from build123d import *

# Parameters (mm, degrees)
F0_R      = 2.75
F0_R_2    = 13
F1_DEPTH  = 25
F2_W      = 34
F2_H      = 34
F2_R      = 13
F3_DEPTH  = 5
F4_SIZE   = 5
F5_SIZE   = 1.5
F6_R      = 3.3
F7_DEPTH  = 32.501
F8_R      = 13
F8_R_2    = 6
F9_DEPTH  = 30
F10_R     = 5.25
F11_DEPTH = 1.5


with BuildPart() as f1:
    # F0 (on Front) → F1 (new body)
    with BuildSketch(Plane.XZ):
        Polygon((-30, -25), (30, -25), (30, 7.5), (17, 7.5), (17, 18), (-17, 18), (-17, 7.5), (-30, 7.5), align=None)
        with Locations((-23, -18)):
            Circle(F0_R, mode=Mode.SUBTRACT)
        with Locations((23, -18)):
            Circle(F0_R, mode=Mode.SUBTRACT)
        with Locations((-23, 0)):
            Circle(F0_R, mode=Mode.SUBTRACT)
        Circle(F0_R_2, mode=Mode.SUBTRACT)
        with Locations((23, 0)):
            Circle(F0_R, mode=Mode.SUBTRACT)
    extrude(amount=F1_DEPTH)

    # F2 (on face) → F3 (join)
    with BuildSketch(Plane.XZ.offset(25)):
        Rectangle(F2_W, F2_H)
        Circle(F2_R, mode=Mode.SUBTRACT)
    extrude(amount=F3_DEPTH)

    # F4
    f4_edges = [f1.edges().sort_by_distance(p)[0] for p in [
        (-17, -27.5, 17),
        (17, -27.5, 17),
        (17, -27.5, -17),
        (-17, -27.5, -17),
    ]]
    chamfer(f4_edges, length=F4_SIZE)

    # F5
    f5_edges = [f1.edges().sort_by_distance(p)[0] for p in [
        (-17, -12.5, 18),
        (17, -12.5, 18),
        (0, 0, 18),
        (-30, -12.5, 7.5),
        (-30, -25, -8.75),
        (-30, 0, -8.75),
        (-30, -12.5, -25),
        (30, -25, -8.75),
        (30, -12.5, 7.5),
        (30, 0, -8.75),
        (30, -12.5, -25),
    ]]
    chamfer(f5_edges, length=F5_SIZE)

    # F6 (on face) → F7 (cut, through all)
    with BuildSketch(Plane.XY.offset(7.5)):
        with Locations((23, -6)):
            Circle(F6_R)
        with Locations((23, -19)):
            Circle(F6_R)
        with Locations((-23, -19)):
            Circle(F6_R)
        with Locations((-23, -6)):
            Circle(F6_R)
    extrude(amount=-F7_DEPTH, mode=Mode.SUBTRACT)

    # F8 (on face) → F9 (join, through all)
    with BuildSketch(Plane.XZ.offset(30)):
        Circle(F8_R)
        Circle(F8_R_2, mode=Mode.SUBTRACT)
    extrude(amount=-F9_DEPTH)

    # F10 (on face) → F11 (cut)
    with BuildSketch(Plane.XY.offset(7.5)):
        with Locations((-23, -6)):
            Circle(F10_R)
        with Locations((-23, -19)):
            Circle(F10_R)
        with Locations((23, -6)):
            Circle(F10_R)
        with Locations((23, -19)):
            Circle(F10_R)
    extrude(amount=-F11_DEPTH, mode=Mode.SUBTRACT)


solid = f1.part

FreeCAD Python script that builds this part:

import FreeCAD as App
import Part
import Sketcher

V = App.Vector
Q = App.Units.Quantity


def edges_at(feature, points):
    """Names of the edges that pass closest to the given points."""
    edges = feature.Shape.Edges
    near = lambda p: min(range(len(edges)), key=lambda i: edges[i].distToShape(Part.Vertex(*p))[0])
    return sorted({f"Edge{near(p) + 1}" for p in points})


def add_polygon(sketch, points):
    """Adds a closed chain of lines whose ends are joined by coincident constraints."""
    first, n = sketch.GeometryCount, len(points)
    for a, b in zip(points, points[1:] + points[:1]):
        sketch.addGeometry(Part.LineSegment(App.Vector(*a, 0), App.Vector(*b, 0)), False)
    for i in range(n):
        sketch.addConstraint(Sketcher.Constraint("Coincident", first + i, 2, first + (i + 1) % n, 1))

doc = App.newDocument("Part")
body = doc.addObject("PartDesign::Body", "Body")

# Sketch on XZ plane
sketch1 = body.newObject("Sketcher::SketchObject", "Sketch")
sketch1.AttachmentSupport = (doc.getObject("XZ_Plane"), [""])
sketch1.MapMode = "FlatFace"
add_polygon(sketch1, [(-30, -25), (30, -25), (30, 7.5), (17, 7.5), (17, 18), (-17, 18), (-17, 7.5), (-30, 7.5)])  # lines 0-7
sketch1.addGeometry(Part.Circle(V(-23, -18, 0), V(0, 0, 1), 2.8), False)  # 8
sketch1.addGeometry(Part.Circle(V(23, -18, 0), V(0, 0, 1), 2.8), False)  # 9
sketch1.addGeometry(Part.Circle(V(-23, 0, 0), V(0, 0, 1), 2.8), False)  # 10
sketch1.addGeometry(Part.Circle(V(0, 0, 0), V(0, 0, 1), 13), False)  # 11
sketch1.addGeometry(Part.Circle(V(23, 0, 0), V(0, 0, 1), 2.8), False)  # 12
sketch1.addConstraint(Sketcher.Constraint("Horizontal", 0))
sketch1.addConstraint(Sketcher.Constraint("Vertical", 1))
sketch1.addConstraint(Sketcher.Constraint("Horizontal", 2))
sketch1.addConstraint(Sketcher.Constraint("Vertical", 3))
sketch1.addConstraint(Sketcher.Constraint("Horizontal", 4))
sketch1.addConstraint(Sketcher.Constraint("Vertical", 5))
sketch1.addConstraint(Sketcher.Constraint("Horizontal", 6))
sketch1.addConstraint(Sketcher.Constraint("Vertical", 7))
sketch1.addConstraint(Sketcher.Constraint("Coincident", 11, 3, -1, 1))
sketch1.addConstraint(Sketcher.Constraint("Equal", 8, 9))
sketch1.addConstraint(Sketcher.Constraint("Equal", 9, 10))
sketch1.addConstraint(Sketcher.Constraint("Equal", 10, 12))
sketch1.addConstraint(Sketcher.Constraint("Symmetric", 10, 3, 12, 3, -1, 1))
sketch1.addConstraint(Sketcher.Constraint("Symmetric", 8, 3, 9, 3, -2))
sketch1.addConstraint(Sketcher.Constraint("Symmetric", 2, 2, 5, 2, -2))
sketch1.addConstraint(Sketcher.Constraint("PointOnObject", 10, 3, -1))
sketch1.addConstraint(Sketcher.Constraint("Vertical", 8, 3, 10, 3))
sketch1.addConstraint(Sketcher.Constraint("Equal", 2, 6))
sketch1.addConstraint(Sketcher.Constraint("Diameter", 11, Q("26 mm")))
sketch1.addConstraint(Sketcher.Constraint("Diameter", 8, Q("5.5 mm")))
sketch1.addConstraint(Sketcher.Constraint("DistanceX", 0, 1, 0, 2, Q("60 mm")))
sketch1.addConstraint(Sketcher.Constraint("DistanceX", 2, 2, 2, 1, Q("13 mm")))
sketch1.addConstraint(Sketcher.Constraint("DistanceY", 1, 1, 1, 2, Q("32.5 mm")))
sketch1.addConstraint(Sketcher.Constraint("DistanceY", 3, 1, 3, 2, Q("10.5 mm")))
sketch1.addConstraint(Sketcher.Constraint("DistanceX", 8, 3, -1, 1, Q("23 mm")))
sketch1.addConstraint(Sketcher.Constraint("DistanceY", 8, 3, -1, 1, Q("18 mm")))
sketch1.addConstraint(Sketcher.Constraint("DistanceY", 0, 2, -1, 1, Q("25 mm")))
pad1 = body.newObject("PartDesign::Pad", "Pad")
pad1.Profile = sketch1
pad1.Length = 25

# Sketch on XZ plane
sketch2 = body.newObject("Sketcher::SketchObject", "Sketch001")
sketch2.AttachmentSupport = (doc.getObject("XZ_Plane"), [""])
sketch2.MapMode = "FlatFace"
sketch2.AttachmentOffset = App.Placement(V(0, 0, 25), App.Rotation())
add_polygon(sketch2, [(-17, 17), (-17, -17), (17, -17), (17, 17)])  # lines 0-3
sketch2.addGeometry(Part.Circle(V(0, 0, 0), V(0, 0, 1), 13), False)  # 4
sketch2.addConstraint(Sketcher.Constraint("Vertical", 0))
sketch2.addConstraint(Sketcher.Constraint("Horizontal", 1))
sketch2.addConstraint(Sketcher.Constraint("Vertical", 2))
sketch2.addConstraint(Sketcher.Constraint("Horizontal", 3))
sketch2.addConstraint(Sketcher.Constraint("Coincident", 4, 3, -1, 1))
sketch2.addConstraint(Sketcher.Constraint("Symmetric", 0, 2, 2, 2, -1, 1))
sketch2.addConstraint(Sketcher.Constraint("Equal", 3, 0))
sketch2.addConstraint(Sketcher.Constraint("Diameter", 4, Q("26 mm")))
sketch2.addConstraint(Sketcher.Constraint("DistanceX", 1, 1, 1, 2, Q("34 mm")))
pad2 = body.newObject("PartDesign::Pad", "Pad001")
pad2.Profile = sketch2
pad2.Length = 5
doc.recompute()

chamfer = body.newObject("PartDesign::Chamfer", "Chamfer")
chamfer.Base = (pad2, edges_at(pad2, [
    (-17, -27.5, 17),
    (17, -27.5, 17),
    (17, -27.5, -17),
    (-17, -27.5, -17),
]))
chamfer.Size = 5
doc.recompute()

chamfer2 = body.newObject("PartDesign::Chamfer", "Chamfer001")
chamfer2.Base = (chamfer, edges_at(chamfer, [
    (-17, -12.5, 18),
    (17, -12.5, 18),
    (0, 0, 18),
    (-30, -12.5, 7.5),
    (-30, -25, -8.75),
    (-30, 0, -8.75),
    (-30, -12.5, -25),
    (30, -25, -8.75),
    (30, -12.5, 7.5),
    (30, 0, -8.75),
    (30, -12.5, -25),
]))
chamfer2.Size = 1.5

# Sketch on XY plane
sketch3 = body.newObject("Sketcher::SketchObject", "Sketch002")
sketch3.AttachmentSupport = (doc.getObject("XY_Plane"), [""])
sketch3.MapMode = "FlatFace"
sketch3.AttachmentOffset = App.Placement(V(0, 0, 7.5), App.Rotation())
sketch3.addGeometry(Part.Circle(V(23, -6, 0), V(0, 0, 1), 3.3), False)
sketch3.addGeometry(Part.Circle(V(23, -19, 0), V(0, 0, 1), 3.3), False)
sketch3.addGeometry(Part.Circle(V(-23, -19, 0), V(0, 0, 1), 3.3), False)
sketch3.addGeometry(Part.Circle(V(-23, -6, 0), V(0, 0, 1), 3.3), False)
sketch3.addConstraint(Sketcher.Constraint("Equal", 0, 1))
sketch3.addConstraint(Sketcher.Constraint("Equal", 1, 2))
sketch3.addConstraint(Sketcher.Constraint("Equal", 2, 3))
sketch3.addConstraint(Sketcher.Constraint("Symmetric", 1, 3, 2, 3, -2))
sketch3.addConstraint(Sketcher.Constraint("Symmetric", 0, 3, 3, 3, -2))
sketch3.addConstraint(Sketcher.Constraint("Vertical", 0, 3, 1, 3))
sketch3.addConstraint(Sketcher.Constraint("Diameter", 0, Q("6.6 mm")))
sketch3.addConstraint(Sketcher.Constraint("DistanceX", -1, 1, 0, 3, Q("23 mm")))
sketch3.addConstraint(Sketcher.Constraint("DistanceY", 0, 3, -1, 1, Q("6 mm")))
sketch3.addConstraint(Sketcher.Constraint("DistanceY", 1, 3, -1, 1, Q("19 mm")))
pocket1 = body.newObject("PartDesign::Pocket", "Pocket")
pocket1.Profile = sketch3
pocket1.Type = "ThroughAll"

# Sketch on XZ plane
sketch4 = body.newObject("Sketcher::SketchObject", "Sketch003")
sketch4.AttachmentSupport = (doc.getObject("XZ_Plane"), [""])
sketch4.MapMode = "FlatFace"
sketch4.AttachmentOffset = App.Placement(V(0, 0, 30), App.Rotation())
sketch4.addGeometry(Part.Circle(V(0, 0, 0), V(0, 0, 1), 13), False)
sketch4.addGeometry(Part.Circle(V(0, 0, 0), V(0, 0, 1), 6), False)
sketch4.addConstraint(Sketcher.Constraint("Coincident", 0, 3, -1, 1))
sketch4.addConstraint(Sketcher.Constraint("Coincident", 1, 3, -1, 1))
sketch4.addConstraint(Sketcher.Constraint("Diameter", 0, Q("26 mm")))
sketch4.addConstraint(Sketcher.Constraint("Diameter", 1, Q("12 mm")))
pad3 = body.newObject("PartDesign::Pad", "Pad002")
pad3.Profile = sketch4
pad3.Length = 30
pad3.Reversed = True

# Sketch on XY plane
sketch5 = body.newObject("Sketcher::SketchObject", "Sketch004")
sketch5.AttachmentSupport = (doc.getObject("XY_Plane"), [""])
sketch5.MapMode = "FlatFace"
sketch5.AttachmentOffset = App.Placement(V(0, 0, 7.5), App.Rotation())
sketch5.addGeometry(Part.Circle(V(-23, -6, 0), V(0, 0, 1), 5), False)
sketch5.addGeometry(Part.Circle(V(-23, -19, 0), V(0, 0, 1), 5), False)
sketch5.addGeometry(Part.Circle(V(23, -6, 0), V(0, 0, 1), 5), False)
sketch5.addGeometry(Part.Circle(V(23, -19, 0), V(0, 0, 1), 5), False)
sketch5.addConstraint(Sketcher.Constraint("Equal", 0, 1))
sketch5.addConstraint(Sketcher.Constraint("Equal", 1, 2))
sketch5.addConstraint(Sketcher.Constraint("Equal", 2, 3))
sketch5.addConstraint(Sketcher.Constraint("Symmetric", 0, 3, 2, 3, -2))
sketch5.addConstraint(Sketcher.Constraint("Symmetric", 1, 3, 3, 3, -2))
sketch5.addConstraint(Sketcher.Constraint("Vertical", 0, 3, 1, 3))
sketch5.addConstraint(Sketcher.Constraint("Diameter", 0, Q("10.5 mm")))
sketch5.addConstraint(Sketcher.Constraint("DistanceX", 0, 3, -1, 1, Q("23 mm")))
sketch5.addConstraint(Sketcher.Constraint("DistanceY", 0, 3, -1, 1, Q("6 mm")))
sketch5.addConstraint(Sketcher.Constraint("DistanceY", 1, 3, -1, 1, Q("19 mm")))
pocket2 = body.newObject("PartDesign::Pocket", "Pocket001")
pocket2.Profile = sketch5
pocket2.Length = 1.5

doc.recompute()
